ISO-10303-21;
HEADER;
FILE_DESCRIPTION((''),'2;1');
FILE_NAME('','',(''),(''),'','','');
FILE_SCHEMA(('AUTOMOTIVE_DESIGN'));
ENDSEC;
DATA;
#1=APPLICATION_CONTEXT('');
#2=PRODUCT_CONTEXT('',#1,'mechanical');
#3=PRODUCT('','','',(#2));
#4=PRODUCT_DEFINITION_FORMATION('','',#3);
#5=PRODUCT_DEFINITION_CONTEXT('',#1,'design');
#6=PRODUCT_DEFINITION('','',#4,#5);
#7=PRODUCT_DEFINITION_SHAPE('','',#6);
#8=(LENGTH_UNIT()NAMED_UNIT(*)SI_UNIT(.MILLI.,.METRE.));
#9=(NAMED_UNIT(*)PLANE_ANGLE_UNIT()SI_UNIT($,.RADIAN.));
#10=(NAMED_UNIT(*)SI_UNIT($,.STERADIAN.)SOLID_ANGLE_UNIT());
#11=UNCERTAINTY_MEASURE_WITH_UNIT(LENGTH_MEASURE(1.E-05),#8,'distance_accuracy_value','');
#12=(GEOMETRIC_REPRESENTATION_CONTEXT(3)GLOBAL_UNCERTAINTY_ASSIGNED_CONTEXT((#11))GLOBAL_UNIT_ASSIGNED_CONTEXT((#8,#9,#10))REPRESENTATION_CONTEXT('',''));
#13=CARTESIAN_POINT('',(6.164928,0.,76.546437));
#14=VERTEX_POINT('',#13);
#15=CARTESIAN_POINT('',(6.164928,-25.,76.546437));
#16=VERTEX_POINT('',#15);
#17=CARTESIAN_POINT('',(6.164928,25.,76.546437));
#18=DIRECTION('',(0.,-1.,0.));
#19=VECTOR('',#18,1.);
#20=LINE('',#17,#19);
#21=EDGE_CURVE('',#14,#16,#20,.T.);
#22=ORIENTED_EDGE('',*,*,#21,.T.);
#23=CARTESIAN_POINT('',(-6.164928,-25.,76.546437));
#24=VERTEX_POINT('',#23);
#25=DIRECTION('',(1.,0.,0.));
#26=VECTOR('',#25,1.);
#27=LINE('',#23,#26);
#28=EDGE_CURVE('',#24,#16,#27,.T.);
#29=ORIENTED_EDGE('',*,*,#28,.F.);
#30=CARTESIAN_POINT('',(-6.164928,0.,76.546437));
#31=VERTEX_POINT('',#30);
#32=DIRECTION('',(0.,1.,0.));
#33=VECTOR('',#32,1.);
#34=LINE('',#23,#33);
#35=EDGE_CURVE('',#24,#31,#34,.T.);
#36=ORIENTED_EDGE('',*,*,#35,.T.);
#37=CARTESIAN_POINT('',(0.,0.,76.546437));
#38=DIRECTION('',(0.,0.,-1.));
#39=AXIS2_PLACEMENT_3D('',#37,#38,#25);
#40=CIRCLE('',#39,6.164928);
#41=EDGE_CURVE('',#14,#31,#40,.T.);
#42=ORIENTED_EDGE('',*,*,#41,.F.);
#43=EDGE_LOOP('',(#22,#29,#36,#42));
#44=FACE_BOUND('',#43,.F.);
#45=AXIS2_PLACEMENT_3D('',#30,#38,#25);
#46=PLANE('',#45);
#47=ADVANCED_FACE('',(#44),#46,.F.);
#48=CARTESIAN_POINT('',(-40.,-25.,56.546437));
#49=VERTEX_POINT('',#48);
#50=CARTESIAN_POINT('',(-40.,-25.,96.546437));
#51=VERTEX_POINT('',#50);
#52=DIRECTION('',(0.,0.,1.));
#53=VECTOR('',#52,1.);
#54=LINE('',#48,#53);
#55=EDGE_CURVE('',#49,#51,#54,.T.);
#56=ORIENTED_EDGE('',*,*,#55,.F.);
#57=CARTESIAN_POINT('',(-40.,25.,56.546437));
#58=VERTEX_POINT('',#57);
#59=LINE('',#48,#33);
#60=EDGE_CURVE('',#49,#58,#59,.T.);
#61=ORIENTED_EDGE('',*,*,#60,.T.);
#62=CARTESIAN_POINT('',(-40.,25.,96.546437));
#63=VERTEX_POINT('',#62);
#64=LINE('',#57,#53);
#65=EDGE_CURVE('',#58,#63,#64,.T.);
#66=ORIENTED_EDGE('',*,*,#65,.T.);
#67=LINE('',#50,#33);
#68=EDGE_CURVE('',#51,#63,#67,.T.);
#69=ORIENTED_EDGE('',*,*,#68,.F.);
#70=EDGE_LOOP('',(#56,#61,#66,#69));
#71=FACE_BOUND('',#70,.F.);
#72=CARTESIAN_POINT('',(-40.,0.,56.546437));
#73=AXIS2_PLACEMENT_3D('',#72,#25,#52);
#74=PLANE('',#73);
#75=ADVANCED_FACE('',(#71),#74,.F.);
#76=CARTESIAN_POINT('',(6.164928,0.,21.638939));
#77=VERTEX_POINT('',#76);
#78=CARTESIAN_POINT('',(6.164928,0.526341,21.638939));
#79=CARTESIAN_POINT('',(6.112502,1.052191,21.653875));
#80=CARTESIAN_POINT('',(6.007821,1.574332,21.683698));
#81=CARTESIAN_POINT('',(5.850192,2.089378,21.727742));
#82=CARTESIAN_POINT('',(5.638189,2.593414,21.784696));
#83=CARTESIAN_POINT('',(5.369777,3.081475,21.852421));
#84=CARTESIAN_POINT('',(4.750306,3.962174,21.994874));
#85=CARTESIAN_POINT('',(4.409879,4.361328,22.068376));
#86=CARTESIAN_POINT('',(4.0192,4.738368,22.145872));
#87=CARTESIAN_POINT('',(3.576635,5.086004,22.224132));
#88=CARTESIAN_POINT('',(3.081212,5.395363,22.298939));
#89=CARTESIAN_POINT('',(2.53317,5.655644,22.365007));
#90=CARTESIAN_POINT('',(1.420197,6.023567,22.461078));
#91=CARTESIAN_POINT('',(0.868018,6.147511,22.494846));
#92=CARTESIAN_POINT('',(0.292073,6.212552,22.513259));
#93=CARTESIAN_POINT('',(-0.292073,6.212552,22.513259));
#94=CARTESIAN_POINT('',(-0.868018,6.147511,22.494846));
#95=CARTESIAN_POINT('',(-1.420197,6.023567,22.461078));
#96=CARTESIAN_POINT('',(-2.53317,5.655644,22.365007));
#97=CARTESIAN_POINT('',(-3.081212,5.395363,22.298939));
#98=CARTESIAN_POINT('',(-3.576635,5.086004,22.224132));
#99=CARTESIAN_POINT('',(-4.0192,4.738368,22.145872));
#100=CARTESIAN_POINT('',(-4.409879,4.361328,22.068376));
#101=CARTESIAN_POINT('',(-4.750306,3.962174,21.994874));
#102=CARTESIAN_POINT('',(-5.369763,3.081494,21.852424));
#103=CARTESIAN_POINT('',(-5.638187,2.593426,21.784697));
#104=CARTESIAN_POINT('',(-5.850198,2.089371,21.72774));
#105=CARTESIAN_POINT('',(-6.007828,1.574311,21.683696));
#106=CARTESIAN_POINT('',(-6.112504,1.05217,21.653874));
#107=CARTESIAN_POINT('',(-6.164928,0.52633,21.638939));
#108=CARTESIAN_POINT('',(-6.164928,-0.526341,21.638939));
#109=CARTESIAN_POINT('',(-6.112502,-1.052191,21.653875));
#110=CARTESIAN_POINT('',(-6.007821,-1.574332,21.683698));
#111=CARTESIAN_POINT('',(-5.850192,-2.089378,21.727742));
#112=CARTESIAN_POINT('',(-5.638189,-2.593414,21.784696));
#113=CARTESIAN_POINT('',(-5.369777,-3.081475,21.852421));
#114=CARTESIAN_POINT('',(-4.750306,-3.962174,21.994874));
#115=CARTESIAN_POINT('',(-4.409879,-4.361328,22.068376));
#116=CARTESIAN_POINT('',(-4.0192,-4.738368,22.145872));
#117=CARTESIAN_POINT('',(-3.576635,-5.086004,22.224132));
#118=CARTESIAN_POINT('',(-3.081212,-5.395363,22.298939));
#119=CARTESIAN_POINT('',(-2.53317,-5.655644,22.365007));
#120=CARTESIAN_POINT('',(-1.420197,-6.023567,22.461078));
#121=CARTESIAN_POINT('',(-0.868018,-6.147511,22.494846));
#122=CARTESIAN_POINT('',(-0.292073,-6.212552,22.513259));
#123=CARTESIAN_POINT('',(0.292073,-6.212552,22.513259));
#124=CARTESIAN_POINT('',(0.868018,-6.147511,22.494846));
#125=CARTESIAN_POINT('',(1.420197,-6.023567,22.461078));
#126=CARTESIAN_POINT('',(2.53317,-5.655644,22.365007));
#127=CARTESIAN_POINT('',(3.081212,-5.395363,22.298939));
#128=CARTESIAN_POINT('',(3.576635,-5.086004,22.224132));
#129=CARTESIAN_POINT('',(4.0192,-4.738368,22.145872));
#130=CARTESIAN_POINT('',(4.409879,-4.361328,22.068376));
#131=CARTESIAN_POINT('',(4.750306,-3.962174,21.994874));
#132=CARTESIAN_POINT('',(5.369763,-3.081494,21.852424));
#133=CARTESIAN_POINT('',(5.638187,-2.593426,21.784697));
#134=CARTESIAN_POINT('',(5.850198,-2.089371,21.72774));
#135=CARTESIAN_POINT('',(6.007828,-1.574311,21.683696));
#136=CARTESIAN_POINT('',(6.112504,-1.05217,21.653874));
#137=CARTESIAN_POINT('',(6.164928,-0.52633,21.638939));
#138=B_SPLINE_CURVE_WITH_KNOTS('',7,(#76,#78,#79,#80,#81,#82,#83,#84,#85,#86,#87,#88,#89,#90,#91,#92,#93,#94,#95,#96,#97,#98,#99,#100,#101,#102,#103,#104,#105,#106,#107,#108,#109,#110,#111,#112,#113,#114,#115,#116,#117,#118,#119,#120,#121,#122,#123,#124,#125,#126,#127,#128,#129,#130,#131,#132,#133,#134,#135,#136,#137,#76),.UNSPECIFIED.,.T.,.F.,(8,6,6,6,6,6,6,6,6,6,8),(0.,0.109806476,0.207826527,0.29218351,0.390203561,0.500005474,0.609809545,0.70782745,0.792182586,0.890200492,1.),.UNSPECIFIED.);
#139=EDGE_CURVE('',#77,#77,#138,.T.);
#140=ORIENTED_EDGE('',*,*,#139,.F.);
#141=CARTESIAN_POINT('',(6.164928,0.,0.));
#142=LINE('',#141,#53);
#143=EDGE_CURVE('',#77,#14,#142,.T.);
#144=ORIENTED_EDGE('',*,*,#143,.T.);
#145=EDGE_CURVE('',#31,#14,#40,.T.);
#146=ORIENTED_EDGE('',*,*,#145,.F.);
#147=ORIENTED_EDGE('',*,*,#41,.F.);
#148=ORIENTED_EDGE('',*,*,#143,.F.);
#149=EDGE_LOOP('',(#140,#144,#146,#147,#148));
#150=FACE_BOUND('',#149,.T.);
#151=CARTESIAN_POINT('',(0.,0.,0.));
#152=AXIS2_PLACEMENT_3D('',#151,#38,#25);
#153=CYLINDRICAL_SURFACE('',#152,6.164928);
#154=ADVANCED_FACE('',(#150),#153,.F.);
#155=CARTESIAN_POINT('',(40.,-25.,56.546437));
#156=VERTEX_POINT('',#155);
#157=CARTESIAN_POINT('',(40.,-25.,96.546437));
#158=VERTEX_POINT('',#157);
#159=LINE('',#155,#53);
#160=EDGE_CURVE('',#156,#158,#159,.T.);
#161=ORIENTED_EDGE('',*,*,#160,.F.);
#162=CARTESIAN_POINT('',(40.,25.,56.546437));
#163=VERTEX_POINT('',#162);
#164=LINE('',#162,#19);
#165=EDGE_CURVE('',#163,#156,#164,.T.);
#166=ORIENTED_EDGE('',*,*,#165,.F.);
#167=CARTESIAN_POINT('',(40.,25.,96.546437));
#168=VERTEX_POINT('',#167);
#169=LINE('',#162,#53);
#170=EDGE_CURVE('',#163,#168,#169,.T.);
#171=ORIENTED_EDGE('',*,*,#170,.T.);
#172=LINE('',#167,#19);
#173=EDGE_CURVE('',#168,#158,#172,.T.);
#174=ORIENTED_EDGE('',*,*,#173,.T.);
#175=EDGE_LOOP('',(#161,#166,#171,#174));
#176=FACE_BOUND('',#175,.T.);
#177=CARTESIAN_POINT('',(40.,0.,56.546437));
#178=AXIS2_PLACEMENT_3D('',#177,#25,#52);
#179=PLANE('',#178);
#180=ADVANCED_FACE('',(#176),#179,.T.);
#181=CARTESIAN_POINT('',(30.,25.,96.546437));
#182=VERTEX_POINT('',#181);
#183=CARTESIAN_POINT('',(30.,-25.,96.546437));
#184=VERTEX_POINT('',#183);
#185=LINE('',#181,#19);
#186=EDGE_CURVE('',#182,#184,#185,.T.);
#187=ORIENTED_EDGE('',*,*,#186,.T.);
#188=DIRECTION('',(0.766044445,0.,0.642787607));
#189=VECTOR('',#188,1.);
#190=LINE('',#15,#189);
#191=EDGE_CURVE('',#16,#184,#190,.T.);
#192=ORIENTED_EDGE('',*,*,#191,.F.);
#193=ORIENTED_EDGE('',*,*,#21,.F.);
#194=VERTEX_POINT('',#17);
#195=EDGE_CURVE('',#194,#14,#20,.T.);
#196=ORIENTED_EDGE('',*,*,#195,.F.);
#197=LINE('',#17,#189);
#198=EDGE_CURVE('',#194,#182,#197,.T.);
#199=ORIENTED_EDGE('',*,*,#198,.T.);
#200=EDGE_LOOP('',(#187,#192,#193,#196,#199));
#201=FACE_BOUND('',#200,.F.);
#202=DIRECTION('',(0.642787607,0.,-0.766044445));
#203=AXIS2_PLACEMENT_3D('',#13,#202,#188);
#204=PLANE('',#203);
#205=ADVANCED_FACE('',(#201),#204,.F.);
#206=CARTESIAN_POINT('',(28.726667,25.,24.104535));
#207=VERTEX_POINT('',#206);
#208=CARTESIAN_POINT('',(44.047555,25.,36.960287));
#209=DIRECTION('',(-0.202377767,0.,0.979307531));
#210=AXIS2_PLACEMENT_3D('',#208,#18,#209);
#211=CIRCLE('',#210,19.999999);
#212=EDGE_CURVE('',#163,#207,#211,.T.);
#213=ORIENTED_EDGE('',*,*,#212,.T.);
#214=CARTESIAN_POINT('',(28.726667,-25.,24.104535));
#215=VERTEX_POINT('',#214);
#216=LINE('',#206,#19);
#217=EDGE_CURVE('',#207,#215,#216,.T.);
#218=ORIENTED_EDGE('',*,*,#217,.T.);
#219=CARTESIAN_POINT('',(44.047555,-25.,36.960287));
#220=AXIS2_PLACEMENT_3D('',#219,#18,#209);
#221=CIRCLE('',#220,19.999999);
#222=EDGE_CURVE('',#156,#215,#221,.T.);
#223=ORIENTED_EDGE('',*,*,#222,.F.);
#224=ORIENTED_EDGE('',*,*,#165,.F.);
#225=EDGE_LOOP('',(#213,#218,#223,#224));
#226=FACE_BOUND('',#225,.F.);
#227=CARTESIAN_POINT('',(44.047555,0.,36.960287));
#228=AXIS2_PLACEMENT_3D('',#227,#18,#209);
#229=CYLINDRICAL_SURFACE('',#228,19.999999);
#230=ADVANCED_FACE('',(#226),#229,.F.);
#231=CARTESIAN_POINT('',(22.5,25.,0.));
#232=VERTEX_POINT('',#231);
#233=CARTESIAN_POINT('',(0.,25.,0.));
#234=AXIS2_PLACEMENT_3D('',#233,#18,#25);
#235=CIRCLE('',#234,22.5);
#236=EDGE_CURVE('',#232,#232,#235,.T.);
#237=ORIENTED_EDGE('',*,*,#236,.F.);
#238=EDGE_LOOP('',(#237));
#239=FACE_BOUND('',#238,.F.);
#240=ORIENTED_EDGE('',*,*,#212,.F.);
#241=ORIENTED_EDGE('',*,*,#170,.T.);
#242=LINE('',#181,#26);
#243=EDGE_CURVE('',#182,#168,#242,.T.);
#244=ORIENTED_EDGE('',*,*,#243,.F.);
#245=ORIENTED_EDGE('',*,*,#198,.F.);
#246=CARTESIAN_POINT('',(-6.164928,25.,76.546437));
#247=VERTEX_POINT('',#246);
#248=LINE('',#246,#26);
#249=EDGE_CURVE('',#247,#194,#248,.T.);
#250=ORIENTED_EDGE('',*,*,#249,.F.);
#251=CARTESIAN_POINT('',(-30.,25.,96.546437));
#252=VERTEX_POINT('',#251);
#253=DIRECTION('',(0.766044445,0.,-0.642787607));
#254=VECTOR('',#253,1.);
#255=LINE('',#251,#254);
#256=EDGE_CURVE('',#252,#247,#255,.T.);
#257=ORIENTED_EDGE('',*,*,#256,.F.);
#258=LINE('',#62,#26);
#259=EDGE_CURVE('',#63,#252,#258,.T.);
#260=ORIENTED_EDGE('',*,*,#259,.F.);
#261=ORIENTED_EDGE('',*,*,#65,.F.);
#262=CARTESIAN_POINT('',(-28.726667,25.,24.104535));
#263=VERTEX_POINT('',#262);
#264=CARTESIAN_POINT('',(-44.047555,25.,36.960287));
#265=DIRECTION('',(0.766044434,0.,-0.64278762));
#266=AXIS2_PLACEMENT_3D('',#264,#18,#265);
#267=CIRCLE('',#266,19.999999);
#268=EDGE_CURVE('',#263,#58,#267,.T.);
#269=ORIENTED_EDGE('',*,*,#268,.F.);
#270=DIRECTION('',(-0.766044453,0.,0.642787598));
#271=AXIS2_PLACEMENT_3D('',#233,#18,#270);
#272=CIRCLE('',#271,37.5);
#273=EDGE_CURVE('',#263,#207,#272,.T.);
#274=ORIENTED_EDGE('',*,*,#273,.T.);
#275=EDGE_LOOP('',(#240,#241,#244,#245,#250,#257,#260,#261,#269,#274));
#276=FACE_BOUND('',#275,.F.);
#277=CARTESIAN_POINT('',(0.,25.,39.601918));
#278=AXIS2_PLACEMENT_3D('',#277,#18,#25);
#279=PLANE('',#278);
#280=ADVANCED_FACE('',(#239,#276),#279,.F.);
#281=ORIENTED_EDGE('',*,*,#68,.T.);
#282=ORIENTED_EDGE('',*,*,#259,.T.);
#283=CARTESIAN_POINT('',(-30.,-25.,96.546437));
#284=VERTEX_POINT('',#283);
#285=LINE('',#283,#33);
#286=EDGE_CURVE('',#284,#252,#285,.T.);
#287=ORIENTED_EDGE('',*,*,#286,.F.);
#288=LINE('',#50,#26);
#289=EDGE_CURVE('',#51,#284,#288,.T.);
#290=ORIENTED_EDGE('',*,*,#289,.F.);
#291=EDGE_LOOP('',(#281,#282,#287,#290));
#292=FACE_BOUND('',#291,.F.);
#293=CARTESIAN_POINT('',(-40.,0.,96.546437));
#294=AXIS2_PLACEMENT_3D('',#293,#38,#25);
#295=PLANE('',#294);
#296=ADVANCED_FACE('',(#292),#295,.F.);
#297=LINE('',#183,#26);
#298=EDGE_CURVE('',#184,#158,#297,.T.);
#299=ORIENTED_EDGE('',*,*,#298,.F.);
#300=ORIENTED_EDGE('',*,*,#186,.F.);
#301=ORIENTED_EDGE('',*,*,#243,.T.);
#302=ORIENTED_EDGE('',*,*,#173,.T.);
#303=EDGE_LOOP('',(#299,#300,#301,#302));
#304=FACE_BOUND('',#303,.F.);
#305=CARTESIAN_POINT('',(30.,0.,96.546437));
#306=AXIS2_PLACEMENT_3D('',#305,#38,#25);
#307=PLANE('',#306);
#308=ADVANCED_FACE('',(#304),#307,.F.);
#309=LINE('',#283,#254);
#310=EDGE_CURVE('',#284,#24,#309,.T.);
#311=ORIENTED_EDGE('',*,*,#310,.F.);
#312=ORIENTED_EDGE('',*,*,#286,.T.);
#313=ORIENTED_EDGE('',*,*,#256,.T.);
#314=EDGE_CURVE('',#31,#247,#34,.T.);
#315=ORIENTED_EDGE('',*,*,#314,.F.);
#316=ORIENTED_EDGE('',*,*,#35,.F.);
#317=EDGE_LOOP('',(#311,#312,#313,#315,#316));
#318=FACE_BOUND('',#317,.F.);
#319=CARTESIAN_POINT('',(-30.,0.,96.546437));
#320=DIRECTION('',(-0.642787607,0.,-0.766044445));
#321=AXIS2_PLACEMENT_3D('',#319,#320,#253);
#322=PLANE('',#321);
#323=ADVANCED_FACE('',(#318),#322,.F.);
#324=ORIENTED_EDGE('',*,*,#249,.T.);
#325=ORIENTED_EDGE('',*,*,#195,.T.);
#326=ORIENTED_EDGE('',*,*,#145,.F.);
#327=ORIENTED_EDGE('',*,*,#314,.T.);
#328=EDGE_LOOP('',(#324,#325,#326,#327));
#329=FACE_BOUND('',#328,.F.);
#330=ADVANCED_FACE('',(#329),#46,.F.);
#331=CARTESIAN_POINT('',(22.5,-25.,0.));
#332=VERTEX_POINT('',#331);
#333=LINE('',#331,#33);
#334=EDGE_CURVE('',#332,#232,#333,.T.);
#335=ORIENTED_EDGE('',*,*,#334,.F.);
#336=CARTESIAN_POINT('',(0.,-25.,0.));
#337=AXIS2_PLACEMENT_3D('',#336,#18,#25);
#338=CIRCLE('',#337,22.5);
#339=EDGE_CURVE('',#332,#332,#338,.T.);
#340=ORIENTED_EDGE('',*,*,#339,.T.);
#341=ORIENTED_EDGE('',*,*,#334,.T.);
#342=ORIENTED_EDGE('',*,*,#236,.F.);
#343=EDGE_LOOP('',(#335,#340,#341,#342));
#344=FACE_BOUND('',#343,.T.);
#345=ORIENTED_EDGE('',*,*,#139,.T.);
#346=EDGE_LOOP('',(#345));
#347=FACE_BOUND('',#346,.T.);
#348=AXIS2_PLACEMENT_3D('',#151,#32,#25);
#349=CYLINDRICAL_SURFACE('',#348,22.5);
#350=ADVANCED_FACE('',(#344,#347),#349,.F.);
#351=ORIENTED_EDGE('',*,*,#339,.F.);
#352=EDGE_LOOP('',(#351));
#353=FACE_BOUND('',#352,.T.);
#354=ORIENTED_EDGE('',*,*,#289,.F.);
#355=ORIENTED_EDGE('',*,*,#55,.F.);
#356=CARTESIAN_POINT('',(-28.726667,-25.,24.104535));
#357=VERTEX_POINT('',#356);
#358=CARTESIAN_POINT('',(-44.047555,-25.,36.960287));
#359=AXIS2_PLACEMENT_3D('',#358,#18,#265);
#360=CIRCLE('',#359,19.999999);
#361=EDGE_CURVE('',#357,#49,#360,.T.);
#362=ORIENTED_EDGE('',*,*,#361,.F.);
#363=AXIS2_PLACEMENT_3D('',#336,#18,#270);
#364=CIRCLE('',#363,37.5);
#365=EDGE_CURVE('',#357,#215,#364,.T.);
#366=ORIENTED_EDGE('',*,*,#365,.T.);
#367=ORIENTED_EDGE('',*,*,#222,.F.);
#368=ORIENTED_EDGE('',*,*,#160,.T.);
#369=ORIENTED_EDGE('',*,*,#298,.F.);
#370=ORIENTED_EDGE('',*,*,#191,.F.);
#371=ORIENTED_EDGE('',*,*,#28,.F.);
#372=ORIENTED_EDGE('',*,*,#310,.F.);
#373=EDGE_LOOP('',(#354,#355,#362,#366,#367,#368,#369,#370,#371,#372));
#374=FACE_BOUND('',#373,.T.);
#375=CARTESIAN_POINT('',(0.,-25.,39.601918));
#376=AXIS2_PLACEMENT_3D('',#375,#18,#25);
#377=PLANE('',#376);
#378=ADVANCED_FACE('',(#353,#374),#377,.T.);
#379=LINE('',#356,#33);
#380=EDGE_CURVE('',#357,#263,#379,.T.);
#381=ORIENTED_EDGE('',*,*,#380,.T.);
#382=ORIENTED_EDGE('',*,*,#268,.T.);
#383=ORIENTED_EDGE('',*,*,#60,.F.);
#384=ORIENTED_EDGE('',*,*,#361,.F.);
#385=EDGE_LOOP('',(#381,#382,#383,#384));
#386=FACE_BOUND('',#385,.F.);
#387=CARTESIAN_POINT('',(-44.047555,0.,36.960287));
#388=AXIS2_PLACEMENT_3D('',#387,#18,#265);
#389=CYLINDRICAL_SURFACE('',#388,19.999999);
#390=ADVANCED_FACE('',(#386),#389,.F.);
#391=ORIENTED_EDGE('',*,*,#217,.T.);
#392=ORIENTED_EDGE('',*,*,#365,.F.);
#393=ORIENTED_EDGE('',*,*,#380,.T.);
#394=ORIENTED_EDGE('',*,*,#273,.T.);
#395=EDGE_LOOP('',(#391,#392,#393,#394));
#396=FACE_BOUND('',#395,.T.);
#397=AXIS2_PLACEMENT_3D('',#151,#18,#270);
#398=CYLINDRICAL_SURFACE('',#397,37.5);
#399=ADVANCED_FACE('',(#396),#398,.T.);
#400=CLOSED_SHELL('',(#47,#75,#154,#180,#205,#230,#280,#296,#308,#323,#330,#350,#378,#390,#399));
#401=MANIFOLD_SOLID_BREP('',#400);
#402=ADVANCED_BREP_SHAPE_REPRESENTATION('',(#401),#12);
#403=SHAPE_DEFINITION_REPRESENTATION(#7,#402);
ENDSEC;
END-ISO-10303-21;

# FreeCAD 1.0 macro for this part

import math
import FreeCAD as App
import Part
import Sketcher

V = App.Vector
Q = App.Units.Quantity

doc = App.newDocument("Part")
body = doc.addObject("PartDesign::Body", "Body")

# Sketch on XZ plane
sketch1 = body.newObject("Sketcher::SketchObject", "Sketch")
sketch1.AttachmentSupport = (doc.getObject("XZ_Plane"), [""])
sketch1.MapMode = "FlatFace"
sketch1.addGeometry([
    Part.ArcOfCircle(Part.Circle(V(0, 0, 0), V(0, 0, 1), 38), math.radians(140), math.radians(400)),  # 0
    Part.ArcOfCircle(Part.Circle(V(44, 37, 0), V(0, 0, 1), 20), math.radians(102), math.radians(220)),  # 1
    Part.LineSegment(V(40, 57, 0), V(40, 97, 0)),  # 2
    Part.LineSegment(V(40, 97, 0), V(30, 97, 0)),  # 3
    Part.LineSegment(V(30, 97, 0), V(6, 77, 0)),  # 4
    Part.LineSegment(V(6, 77, 0), V(-6, 77, 0)),  # 5
    Part.LineSegment(V(-6, 77, 0), V(-30, 97, 0)),  # 6
    Part.LineSegment(V(-30, 97, 0), V(-40, 97, 0)),  # 7
    Part.LineSegment(V(-40, 97, 0), V(-40, 57, 0)),  # 8
    Part.ArcOfCircle(Part.Circle(V(-44, 37, 0), V(0, 0, 1), 20), math.radians(-40), math.radians(78)),  # 9
    Part.Circle(V(0, 0, 0), V(0, 0, 1), 22),  # 10
], False)
sketch1.addConstraint([
    Sketcher.Constraint("Tangent", 0, 2, 1, 2),
    Sketcher.Constraint("Coincident", 1, 1, 2, 1),
    Sketcher.Constraint("Coincident", 2, 2, 3, 1),
    Sketcher.Constraint("Coincident", 3, 2, 4, 1),
    Sketcher.Constraint("Coincident", 4, 2, 5, 1),
    Sketcher.Constraint("Coincident", 5, 2, 6, 1),
    Sketcher.Constraint("Coincident", 6, 2, 7, 1),
    Sketcher.Constraint("Coincident", 7, 2, 8, 1),
    Sketcher.Constraint("Coincident", 8, 2, 9, 2),
    Sketcher.Constraint("Tangent", 9, 1, 0, 1),
    Sketcher.Constraint("Vertical", 2),
    Sketcher.Constraint("Horizontal", 3),
    Sketcher.Constraint("Horizontal", 5),
    Sketcher.Constraint("Horizontal", 7),
    Sketcher.Constraint("Vertical", 8),
    Sketcher.Constraint("Coincident", 0, 3, -1, 1),
    Sketcher.Constraint("Coincident", 10, 3, -1, 1),
    Sketcher.Constraint("Equal", 1, 9),
    Sketcher.Constraint("Symmetric", 3, 2, 6, 2, -2),
    Sketcher.Constraint("Symmetric", 1, 1, 8, 2, -2),
    Sketcher.Constraint("Equal", 4, 6),
    Sketcher.Constraint("Diameter", 10, Q("45 mm")),
    Sketcher.Constraint("Radius", 1, Q("19.999999 mm")),
    Sketcher.Constraint("Radius", 0, Q("37.5 mm")),
    Sketcher.Constraint("DistanceX", 3, 2, 3, 1, Q("10 mm")),
    Sketcher.Constraint("DistanceY", 2, 1, 2, 2, Q("40 mm")),
    Sketcher.Constraint("Angle", 4, Q("-140 deg")),
    Sketcher.Constraint("DistanceX", -1, 1, 1, 1, Q("40 mm")),
    Sketcher.Constraint("DistanceY", 4, 2, 3, 2, Q("20 mm")),
    Sketcher.Constraint("DistanceY", 9, 1, 8, 2, Q("32.441902 mm")),
])
pad1 = body.newObject("PartDesign::Pad", "Pad")
pad1.Profile = sketch1
pad1.Length = 50
pad1.Midplane = True

# Sketch on XY plane
sketch2 = body.newObject("Sketcher::SketchObject", "Sketch001")
sketch2.AttachmentSupport = (doc.getObject("XY_Plane"), [""])
sketch2.MapMode = "FlatFace"
sketch2.addGeometry(Part.Circle(V(0, 0, 0), V(0, 0, 1), 6), False)
sketch2.addConstraint([
    Sketcher.Constraint("Coincident", 0, 3, -1, 1),
    Sketcher.Constraint("Diameter", 0, Q("12.329856 mm")),
])
pocket1 = body.newObject("PartDesign::Pocket", "Pocket")
pocket1.Profile = sketch2
pocket1.Type = "ThroughAll"
pocket1.Reversed = True

doc.recompute()
